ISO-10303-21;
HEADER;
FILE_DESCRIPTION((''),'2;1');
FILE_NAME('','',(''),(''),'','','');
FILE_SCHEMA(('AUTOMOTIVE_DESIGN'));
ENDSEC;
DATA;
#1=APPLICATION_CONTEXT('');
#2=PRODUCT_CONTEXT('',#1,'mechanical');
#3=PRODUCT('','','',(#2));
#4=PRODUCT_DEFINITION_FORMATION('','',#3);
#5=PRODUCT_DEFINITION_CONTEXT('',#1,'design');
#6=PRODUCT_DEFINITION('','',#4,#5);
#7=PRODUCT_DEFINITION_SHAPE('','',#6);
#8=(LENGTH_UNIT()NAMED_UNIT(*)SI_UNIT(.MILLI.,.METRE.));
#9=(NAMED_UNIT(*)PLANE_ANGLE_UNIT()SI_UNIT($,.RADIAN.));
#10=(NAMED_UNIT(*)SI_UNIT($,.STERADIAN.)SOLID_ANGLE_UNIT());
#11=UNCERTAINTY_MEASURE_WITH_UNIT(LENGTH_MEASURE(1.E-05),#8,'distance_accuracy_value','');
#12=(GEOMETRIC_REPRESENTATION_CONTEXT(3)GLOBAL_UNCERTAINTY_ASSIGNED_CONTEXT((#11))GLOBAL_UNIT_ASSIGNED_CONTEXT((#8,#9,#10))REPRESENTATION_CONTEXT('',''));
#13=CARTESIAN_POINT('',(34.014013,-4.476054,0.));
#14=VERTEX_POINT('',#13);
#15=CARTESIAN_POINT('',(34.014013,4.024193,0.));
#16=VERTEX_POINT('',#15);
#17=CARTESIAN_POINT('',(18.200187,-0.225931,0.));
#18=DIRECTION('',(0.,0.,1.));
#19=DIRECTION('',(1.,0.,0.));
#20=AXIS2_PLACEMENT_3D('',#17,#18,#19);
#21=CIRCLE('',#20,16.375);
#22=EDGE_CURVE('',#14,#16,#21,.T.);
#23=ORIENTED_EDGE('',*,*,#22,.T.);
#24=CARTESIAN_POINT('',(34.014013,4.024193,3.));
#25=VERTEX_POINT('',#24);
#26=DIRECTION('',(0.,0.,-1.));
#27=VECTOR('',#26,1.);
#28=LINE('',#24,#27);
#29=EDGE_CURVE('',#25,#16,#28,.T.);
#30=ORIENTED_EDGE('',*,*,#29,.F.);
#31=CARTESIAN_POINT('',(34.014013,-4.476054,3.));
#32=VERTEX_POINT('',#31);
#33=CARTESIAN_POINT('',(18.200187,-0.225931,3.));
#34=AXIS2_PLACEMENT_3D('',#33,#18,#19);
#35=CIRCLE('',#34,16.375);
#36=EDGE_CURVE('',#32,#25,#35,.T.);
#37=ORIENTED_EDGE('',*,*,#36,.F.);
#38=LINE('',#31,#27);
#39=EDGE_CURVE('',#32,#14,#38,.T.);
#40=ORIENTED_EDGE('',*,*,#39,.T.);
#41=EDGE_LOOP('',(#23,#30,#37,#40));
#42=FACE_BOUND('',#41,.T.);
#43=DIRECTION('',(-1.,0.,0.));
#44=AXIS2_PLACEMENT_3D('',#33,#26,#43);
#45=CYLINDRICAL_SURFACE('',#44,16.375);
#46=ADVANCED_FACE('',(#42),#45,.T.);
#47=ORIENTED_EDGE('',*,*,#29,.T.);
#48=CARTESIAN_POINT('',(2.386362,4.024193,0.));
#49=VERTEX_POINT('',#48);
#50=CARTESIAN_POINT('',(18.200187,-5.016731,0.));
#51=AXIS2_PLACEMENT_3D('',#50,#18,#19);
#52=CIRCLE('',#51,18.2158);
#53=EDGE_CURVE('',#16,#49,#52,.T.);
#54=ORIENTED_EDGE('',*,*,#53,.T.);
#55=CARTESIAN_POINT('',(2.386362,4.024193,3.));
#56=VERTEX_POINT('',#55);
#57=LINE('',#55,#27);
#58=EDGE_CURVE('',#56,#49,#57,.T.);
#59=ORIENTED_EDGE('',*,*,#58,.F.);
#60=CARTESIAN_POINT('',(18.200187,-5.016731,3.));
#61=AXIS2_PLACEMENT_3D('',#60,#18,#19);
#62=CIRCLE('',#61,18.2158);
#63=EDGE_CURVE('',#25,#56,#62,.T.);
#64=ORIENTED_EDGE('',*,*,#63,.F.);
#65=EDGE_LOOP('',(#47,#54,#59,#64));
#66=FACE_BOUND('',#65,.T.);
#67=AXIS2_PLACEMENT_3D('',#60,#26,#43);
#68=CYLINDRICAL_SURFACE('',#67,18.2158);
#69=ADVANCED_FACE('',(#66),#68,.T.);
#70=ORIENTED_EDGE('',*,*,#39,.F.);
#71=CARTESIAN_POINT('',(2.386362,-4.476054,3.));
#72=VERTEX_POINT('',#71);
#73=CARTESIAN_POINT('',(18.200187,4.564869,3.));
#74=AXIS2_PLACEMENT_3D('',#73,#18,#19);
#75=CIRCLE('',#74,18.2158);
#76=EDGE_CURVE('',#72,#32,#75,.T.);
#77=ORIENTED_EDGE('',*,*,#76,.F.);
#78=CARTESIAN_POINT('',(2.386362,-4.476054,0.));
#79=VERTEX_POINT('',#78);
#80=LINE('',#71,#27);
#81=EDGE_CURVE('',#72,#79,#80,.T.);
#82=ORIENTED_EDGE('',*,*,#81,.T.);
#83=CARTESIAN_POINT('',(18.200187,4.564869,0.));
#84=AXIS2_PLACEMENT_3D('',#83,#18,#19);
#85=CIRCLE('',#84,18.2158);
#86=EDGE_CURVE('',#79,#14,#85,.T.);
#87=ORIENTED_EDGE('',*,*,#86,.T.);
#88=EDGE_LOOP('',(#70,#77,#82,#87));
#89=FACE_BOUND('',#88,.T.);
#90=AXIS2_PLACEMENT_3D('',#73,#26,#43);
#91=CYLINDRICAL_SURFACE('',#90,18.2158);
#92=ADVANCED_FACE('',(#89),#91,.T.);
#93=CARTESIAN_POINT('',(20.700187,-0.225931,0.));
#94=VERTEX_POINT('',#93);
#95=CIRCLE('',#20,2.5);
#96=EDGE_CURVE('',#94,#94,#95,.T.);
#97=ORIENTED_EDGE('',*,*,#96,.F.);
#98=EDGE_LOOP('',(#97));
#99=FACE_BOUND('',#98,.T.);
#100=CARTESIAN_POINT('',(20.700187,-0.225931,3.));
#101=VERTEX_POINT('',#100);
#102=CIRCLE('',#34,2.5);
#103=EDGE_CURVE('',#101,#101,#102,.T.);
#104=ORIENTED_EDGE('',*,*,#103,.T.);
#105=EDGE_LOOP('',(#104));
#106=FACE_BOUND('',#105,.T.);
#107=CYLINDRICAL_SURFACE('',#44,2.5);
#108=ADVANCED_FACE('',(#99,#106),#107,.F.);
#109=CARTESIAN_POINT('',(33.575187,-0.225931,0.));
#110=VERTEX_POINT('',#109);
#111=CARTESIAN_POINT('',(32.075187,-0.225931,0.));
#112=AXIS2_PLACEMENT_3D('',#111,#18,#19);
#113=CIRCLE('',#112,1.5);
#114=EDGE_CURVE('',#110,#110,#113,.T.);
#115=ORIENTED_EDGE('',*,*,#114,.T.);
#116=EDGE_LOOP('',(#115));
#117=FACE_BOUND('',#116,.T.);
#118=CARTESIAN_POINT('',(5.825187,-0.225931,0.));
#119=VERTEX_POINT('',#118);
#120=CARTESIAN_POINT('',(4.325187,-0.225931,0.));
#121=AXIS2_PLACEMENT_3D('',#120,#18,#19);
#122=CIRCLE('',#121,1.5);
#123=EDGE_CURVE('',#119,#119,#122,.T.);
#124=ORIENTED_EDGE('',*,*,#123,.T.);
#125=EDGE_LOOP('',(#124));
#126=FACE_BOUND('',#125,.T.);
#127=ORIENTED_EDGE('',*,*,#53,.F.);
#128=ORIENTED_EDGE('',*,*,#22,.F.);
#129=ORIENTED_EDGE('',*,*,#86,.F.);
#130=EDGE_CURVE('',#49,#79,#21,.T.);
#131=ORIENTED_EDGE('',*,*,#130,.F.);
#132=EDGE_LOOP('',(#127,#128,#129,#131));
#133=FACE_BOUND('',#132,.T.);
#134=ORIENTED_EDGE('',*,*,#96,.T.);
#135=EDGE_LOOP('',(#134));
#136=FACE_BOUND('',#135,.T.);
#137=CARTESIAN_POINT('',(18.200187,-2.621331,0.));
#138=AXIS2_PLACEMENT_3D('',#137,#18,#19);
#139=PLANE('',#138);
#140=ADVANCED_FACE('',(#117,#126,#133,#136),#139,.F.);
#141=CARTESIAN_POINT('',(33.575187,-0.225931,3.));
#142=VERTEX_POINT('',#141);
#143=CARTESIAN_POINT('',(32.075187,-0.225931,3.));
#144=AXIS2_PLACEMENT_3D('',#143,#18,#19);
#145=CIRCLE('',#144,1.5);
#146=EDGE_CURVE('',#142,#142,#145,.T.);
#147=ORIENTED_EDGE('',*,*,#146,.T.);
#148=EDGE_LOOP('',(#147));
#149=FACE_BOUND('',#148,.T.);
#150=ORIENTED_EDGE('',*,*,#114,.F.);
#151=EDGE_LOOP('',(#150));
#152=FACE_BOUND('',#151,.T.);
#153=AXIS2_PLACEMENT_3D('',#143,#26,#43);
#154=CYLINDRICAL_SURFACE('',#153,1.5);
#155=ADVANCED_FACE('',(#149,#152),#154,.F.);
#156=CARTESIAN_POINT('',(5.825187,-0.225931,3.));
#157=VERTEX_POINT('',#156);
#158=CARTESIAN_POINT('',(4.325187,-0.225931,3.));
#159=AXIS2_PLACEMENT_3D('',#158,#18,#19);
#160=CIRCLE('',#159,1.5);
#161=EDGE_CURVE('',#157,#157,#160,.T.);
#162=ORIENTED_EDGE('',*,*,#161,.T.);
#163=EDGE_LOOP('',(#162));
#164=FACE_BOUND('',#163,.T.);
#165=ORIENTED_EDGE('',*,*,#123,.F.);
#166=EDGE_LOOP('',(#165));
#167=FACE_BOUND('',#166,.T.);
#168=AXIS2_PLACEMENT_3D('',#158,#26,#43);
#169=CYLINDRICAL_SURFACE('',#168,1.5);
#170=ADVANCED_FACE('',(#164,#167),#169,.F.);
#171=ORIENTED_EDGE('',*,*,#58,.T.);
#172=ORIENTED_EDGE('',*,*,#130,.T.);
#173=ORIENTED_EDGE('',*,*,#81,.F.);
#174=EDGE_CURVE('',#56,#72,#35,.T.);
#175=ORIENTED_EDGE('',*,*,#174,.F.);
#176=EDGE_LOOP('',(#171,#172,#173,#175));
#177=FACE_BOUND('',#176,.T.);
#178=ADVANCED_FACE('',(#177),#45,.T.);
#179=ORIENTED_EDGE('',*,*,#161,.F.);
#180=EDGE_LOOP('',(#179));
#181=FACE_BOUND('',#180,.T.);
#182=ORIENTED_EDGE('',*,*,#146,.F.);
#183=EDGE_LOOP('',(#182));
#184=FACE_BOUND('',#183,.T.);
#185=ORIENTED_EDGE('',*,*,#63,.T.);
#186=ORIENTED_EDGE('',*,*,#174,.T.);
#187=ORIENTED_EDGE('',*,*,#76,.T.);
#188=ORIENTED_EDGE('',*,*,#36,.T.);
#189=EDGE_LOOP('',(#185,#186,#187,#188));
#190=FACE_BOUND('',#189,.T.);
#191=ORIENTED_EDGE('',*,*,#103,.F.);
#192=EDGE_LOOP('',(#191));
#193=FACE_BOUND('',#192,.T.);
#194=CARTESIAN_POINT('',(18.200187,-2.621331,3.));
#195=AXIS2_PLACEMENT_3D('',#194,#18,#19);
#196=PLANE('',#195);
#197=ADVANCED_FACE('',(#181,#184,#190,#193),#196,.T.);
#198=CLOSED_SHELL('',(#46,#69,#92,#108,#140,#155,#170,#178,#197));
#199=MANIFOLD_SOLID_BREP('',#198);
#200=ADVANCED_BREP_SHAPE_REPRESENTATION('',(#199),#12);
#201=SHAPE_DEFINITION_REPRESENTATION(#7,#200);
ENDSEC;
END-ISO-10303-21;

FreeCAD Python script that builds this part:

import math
import FreeCAD as App
import Part
import Sketcher

V = App.Vector

doc = App.newDocument("Part")
body = doc.addObject("PartDesign::Body", "Body")

# Sketch on XY plane
sketch1 = body.newObject("Sketcher::SketchObject", "Sketch")
sketch1.AttachmentSupport = (doc.getObject("XY_Plane"), [""])
sketch1.MapMode = "FlatFace"
sketch1.addGeometry(Part.ArcOfCircle(Part.Circle(V(18.2, -0.2, 0), V(0, 0, 1), 16.4), math.radians(165), math.radians(195)), False)
sketch1.addGeometry(Part.ArcOfCircle(Part.Circle(V(18.2, 4.6, 0), V(0, 0, 1), 18.2), math.radians(-150), math.radians(-30)), False)
sketch1.addGeometry(Part.ArcOfCircle(Part.Circle(V(18.2, -0.2, 0), V(0, 0, 1), 16.4), math.radians(-15), math.radians(15)), False)
sketch1.addGeometry(Part.ArcOfCircle(Part.Circle(V(18.2, -5, 0), V(0, 0, 1), 18.2), math.radians(30), math.radians(150)), False)
sketch1.addGeometry(Part.Circle(V(4.3, -0.2, 0), V(0, 0, 1), 1.5), False)
sketch1.addGeometry(Part.Circle(V(18.2, -0.2, 0), V(0, 0, 1), 2.5), False)
sketch1.addGeometry(Part.Circle(V(32.1, -0.2, 0), V(0, 0, 1), 1.5), False)
sketch1.addConstraint(Sketcher.Constraint("Coincident", 0, 2, 1, 1))
sketch1.addConstraint(Sketcher.Constraint("Coincident", 1, 2, 2, 1))
sketch1.addConstraint(Sketcher.Constraint("Coincident", 2, 2, 3, 1))
sketch1.addConstraint(Sketcher.Constraint("Coincident", 3, 2, 0, 1))
sketch1.addConstraint(Sketcher.Constraint("Coincident", 2, 3, 0, 3))
sketch1.addConstraint(Sketcher.Constraint("Coincident", 5, 3, 0, 3))
sketch1.addConstraint(Sketcher.Constraint("Equal", 0, 2))
sketch1.addConstraint(Sketcher.Constraint("Equal", 1, 3))
sketch1.addConstraint(Sketcher.Constraint("Equal", 4, 6))
sketch1.addConstraint(Sketcher.Constraint("Horizontal", 2, 3, 4, 3))
sketch1.addConstraint(Sketcher.Constraint("Horizontal", 5, 3, 6, 3))
sketch1.addConstraint(Sketcher.Constraint("Horizontal", 0, 2, 1, 2))
sketch1.addConstraint(Sketcher.Constraint("Horizontal", 2, 2, 3, 2))
sketch1.addConstraint(Sketcher.Constraint("Vertical", 1, 2, 2, 2))
sketch1.addConstraint(Sketcher.Constraint("Diameter", 4, 3.0))
sketch1.addConstraint(Sketcher.Constraint("Diameter", 5, 5.0))
sketch1.addConstraint(Sketcher.Constraint("Radius", 0, 16.375))
sketch1.addConstraint(Sketcher.Constraint("Radius", 1, 18.2158))
sketch1.addConstraint(Sketcher.Constraint("DistanceX", 4, 3, 2, 3, 13.875))
sketch1.addConstraint(Sketcher.Constraint("DistanceX", 0, 3, 6, 3, 13.875))
sketch1.addConstraint(Sketcher.Constraint("DistanceY", 0, 3, 1, 3, 4.7908))
sketch1.addConstraint(Sketcher.Constraint("DistanceY", 0, 3, -1, 1, 0.225931))
sketch1.addConstraint(Sketcher.Constraint("DistanceX", -1, 1, 0, 3, 18.200188))
pad1 = body.newObject("PartDesign::Pad", "Pad")
pad1.Profile = sketch1
pad1.Length = 3

doc.recompute()
